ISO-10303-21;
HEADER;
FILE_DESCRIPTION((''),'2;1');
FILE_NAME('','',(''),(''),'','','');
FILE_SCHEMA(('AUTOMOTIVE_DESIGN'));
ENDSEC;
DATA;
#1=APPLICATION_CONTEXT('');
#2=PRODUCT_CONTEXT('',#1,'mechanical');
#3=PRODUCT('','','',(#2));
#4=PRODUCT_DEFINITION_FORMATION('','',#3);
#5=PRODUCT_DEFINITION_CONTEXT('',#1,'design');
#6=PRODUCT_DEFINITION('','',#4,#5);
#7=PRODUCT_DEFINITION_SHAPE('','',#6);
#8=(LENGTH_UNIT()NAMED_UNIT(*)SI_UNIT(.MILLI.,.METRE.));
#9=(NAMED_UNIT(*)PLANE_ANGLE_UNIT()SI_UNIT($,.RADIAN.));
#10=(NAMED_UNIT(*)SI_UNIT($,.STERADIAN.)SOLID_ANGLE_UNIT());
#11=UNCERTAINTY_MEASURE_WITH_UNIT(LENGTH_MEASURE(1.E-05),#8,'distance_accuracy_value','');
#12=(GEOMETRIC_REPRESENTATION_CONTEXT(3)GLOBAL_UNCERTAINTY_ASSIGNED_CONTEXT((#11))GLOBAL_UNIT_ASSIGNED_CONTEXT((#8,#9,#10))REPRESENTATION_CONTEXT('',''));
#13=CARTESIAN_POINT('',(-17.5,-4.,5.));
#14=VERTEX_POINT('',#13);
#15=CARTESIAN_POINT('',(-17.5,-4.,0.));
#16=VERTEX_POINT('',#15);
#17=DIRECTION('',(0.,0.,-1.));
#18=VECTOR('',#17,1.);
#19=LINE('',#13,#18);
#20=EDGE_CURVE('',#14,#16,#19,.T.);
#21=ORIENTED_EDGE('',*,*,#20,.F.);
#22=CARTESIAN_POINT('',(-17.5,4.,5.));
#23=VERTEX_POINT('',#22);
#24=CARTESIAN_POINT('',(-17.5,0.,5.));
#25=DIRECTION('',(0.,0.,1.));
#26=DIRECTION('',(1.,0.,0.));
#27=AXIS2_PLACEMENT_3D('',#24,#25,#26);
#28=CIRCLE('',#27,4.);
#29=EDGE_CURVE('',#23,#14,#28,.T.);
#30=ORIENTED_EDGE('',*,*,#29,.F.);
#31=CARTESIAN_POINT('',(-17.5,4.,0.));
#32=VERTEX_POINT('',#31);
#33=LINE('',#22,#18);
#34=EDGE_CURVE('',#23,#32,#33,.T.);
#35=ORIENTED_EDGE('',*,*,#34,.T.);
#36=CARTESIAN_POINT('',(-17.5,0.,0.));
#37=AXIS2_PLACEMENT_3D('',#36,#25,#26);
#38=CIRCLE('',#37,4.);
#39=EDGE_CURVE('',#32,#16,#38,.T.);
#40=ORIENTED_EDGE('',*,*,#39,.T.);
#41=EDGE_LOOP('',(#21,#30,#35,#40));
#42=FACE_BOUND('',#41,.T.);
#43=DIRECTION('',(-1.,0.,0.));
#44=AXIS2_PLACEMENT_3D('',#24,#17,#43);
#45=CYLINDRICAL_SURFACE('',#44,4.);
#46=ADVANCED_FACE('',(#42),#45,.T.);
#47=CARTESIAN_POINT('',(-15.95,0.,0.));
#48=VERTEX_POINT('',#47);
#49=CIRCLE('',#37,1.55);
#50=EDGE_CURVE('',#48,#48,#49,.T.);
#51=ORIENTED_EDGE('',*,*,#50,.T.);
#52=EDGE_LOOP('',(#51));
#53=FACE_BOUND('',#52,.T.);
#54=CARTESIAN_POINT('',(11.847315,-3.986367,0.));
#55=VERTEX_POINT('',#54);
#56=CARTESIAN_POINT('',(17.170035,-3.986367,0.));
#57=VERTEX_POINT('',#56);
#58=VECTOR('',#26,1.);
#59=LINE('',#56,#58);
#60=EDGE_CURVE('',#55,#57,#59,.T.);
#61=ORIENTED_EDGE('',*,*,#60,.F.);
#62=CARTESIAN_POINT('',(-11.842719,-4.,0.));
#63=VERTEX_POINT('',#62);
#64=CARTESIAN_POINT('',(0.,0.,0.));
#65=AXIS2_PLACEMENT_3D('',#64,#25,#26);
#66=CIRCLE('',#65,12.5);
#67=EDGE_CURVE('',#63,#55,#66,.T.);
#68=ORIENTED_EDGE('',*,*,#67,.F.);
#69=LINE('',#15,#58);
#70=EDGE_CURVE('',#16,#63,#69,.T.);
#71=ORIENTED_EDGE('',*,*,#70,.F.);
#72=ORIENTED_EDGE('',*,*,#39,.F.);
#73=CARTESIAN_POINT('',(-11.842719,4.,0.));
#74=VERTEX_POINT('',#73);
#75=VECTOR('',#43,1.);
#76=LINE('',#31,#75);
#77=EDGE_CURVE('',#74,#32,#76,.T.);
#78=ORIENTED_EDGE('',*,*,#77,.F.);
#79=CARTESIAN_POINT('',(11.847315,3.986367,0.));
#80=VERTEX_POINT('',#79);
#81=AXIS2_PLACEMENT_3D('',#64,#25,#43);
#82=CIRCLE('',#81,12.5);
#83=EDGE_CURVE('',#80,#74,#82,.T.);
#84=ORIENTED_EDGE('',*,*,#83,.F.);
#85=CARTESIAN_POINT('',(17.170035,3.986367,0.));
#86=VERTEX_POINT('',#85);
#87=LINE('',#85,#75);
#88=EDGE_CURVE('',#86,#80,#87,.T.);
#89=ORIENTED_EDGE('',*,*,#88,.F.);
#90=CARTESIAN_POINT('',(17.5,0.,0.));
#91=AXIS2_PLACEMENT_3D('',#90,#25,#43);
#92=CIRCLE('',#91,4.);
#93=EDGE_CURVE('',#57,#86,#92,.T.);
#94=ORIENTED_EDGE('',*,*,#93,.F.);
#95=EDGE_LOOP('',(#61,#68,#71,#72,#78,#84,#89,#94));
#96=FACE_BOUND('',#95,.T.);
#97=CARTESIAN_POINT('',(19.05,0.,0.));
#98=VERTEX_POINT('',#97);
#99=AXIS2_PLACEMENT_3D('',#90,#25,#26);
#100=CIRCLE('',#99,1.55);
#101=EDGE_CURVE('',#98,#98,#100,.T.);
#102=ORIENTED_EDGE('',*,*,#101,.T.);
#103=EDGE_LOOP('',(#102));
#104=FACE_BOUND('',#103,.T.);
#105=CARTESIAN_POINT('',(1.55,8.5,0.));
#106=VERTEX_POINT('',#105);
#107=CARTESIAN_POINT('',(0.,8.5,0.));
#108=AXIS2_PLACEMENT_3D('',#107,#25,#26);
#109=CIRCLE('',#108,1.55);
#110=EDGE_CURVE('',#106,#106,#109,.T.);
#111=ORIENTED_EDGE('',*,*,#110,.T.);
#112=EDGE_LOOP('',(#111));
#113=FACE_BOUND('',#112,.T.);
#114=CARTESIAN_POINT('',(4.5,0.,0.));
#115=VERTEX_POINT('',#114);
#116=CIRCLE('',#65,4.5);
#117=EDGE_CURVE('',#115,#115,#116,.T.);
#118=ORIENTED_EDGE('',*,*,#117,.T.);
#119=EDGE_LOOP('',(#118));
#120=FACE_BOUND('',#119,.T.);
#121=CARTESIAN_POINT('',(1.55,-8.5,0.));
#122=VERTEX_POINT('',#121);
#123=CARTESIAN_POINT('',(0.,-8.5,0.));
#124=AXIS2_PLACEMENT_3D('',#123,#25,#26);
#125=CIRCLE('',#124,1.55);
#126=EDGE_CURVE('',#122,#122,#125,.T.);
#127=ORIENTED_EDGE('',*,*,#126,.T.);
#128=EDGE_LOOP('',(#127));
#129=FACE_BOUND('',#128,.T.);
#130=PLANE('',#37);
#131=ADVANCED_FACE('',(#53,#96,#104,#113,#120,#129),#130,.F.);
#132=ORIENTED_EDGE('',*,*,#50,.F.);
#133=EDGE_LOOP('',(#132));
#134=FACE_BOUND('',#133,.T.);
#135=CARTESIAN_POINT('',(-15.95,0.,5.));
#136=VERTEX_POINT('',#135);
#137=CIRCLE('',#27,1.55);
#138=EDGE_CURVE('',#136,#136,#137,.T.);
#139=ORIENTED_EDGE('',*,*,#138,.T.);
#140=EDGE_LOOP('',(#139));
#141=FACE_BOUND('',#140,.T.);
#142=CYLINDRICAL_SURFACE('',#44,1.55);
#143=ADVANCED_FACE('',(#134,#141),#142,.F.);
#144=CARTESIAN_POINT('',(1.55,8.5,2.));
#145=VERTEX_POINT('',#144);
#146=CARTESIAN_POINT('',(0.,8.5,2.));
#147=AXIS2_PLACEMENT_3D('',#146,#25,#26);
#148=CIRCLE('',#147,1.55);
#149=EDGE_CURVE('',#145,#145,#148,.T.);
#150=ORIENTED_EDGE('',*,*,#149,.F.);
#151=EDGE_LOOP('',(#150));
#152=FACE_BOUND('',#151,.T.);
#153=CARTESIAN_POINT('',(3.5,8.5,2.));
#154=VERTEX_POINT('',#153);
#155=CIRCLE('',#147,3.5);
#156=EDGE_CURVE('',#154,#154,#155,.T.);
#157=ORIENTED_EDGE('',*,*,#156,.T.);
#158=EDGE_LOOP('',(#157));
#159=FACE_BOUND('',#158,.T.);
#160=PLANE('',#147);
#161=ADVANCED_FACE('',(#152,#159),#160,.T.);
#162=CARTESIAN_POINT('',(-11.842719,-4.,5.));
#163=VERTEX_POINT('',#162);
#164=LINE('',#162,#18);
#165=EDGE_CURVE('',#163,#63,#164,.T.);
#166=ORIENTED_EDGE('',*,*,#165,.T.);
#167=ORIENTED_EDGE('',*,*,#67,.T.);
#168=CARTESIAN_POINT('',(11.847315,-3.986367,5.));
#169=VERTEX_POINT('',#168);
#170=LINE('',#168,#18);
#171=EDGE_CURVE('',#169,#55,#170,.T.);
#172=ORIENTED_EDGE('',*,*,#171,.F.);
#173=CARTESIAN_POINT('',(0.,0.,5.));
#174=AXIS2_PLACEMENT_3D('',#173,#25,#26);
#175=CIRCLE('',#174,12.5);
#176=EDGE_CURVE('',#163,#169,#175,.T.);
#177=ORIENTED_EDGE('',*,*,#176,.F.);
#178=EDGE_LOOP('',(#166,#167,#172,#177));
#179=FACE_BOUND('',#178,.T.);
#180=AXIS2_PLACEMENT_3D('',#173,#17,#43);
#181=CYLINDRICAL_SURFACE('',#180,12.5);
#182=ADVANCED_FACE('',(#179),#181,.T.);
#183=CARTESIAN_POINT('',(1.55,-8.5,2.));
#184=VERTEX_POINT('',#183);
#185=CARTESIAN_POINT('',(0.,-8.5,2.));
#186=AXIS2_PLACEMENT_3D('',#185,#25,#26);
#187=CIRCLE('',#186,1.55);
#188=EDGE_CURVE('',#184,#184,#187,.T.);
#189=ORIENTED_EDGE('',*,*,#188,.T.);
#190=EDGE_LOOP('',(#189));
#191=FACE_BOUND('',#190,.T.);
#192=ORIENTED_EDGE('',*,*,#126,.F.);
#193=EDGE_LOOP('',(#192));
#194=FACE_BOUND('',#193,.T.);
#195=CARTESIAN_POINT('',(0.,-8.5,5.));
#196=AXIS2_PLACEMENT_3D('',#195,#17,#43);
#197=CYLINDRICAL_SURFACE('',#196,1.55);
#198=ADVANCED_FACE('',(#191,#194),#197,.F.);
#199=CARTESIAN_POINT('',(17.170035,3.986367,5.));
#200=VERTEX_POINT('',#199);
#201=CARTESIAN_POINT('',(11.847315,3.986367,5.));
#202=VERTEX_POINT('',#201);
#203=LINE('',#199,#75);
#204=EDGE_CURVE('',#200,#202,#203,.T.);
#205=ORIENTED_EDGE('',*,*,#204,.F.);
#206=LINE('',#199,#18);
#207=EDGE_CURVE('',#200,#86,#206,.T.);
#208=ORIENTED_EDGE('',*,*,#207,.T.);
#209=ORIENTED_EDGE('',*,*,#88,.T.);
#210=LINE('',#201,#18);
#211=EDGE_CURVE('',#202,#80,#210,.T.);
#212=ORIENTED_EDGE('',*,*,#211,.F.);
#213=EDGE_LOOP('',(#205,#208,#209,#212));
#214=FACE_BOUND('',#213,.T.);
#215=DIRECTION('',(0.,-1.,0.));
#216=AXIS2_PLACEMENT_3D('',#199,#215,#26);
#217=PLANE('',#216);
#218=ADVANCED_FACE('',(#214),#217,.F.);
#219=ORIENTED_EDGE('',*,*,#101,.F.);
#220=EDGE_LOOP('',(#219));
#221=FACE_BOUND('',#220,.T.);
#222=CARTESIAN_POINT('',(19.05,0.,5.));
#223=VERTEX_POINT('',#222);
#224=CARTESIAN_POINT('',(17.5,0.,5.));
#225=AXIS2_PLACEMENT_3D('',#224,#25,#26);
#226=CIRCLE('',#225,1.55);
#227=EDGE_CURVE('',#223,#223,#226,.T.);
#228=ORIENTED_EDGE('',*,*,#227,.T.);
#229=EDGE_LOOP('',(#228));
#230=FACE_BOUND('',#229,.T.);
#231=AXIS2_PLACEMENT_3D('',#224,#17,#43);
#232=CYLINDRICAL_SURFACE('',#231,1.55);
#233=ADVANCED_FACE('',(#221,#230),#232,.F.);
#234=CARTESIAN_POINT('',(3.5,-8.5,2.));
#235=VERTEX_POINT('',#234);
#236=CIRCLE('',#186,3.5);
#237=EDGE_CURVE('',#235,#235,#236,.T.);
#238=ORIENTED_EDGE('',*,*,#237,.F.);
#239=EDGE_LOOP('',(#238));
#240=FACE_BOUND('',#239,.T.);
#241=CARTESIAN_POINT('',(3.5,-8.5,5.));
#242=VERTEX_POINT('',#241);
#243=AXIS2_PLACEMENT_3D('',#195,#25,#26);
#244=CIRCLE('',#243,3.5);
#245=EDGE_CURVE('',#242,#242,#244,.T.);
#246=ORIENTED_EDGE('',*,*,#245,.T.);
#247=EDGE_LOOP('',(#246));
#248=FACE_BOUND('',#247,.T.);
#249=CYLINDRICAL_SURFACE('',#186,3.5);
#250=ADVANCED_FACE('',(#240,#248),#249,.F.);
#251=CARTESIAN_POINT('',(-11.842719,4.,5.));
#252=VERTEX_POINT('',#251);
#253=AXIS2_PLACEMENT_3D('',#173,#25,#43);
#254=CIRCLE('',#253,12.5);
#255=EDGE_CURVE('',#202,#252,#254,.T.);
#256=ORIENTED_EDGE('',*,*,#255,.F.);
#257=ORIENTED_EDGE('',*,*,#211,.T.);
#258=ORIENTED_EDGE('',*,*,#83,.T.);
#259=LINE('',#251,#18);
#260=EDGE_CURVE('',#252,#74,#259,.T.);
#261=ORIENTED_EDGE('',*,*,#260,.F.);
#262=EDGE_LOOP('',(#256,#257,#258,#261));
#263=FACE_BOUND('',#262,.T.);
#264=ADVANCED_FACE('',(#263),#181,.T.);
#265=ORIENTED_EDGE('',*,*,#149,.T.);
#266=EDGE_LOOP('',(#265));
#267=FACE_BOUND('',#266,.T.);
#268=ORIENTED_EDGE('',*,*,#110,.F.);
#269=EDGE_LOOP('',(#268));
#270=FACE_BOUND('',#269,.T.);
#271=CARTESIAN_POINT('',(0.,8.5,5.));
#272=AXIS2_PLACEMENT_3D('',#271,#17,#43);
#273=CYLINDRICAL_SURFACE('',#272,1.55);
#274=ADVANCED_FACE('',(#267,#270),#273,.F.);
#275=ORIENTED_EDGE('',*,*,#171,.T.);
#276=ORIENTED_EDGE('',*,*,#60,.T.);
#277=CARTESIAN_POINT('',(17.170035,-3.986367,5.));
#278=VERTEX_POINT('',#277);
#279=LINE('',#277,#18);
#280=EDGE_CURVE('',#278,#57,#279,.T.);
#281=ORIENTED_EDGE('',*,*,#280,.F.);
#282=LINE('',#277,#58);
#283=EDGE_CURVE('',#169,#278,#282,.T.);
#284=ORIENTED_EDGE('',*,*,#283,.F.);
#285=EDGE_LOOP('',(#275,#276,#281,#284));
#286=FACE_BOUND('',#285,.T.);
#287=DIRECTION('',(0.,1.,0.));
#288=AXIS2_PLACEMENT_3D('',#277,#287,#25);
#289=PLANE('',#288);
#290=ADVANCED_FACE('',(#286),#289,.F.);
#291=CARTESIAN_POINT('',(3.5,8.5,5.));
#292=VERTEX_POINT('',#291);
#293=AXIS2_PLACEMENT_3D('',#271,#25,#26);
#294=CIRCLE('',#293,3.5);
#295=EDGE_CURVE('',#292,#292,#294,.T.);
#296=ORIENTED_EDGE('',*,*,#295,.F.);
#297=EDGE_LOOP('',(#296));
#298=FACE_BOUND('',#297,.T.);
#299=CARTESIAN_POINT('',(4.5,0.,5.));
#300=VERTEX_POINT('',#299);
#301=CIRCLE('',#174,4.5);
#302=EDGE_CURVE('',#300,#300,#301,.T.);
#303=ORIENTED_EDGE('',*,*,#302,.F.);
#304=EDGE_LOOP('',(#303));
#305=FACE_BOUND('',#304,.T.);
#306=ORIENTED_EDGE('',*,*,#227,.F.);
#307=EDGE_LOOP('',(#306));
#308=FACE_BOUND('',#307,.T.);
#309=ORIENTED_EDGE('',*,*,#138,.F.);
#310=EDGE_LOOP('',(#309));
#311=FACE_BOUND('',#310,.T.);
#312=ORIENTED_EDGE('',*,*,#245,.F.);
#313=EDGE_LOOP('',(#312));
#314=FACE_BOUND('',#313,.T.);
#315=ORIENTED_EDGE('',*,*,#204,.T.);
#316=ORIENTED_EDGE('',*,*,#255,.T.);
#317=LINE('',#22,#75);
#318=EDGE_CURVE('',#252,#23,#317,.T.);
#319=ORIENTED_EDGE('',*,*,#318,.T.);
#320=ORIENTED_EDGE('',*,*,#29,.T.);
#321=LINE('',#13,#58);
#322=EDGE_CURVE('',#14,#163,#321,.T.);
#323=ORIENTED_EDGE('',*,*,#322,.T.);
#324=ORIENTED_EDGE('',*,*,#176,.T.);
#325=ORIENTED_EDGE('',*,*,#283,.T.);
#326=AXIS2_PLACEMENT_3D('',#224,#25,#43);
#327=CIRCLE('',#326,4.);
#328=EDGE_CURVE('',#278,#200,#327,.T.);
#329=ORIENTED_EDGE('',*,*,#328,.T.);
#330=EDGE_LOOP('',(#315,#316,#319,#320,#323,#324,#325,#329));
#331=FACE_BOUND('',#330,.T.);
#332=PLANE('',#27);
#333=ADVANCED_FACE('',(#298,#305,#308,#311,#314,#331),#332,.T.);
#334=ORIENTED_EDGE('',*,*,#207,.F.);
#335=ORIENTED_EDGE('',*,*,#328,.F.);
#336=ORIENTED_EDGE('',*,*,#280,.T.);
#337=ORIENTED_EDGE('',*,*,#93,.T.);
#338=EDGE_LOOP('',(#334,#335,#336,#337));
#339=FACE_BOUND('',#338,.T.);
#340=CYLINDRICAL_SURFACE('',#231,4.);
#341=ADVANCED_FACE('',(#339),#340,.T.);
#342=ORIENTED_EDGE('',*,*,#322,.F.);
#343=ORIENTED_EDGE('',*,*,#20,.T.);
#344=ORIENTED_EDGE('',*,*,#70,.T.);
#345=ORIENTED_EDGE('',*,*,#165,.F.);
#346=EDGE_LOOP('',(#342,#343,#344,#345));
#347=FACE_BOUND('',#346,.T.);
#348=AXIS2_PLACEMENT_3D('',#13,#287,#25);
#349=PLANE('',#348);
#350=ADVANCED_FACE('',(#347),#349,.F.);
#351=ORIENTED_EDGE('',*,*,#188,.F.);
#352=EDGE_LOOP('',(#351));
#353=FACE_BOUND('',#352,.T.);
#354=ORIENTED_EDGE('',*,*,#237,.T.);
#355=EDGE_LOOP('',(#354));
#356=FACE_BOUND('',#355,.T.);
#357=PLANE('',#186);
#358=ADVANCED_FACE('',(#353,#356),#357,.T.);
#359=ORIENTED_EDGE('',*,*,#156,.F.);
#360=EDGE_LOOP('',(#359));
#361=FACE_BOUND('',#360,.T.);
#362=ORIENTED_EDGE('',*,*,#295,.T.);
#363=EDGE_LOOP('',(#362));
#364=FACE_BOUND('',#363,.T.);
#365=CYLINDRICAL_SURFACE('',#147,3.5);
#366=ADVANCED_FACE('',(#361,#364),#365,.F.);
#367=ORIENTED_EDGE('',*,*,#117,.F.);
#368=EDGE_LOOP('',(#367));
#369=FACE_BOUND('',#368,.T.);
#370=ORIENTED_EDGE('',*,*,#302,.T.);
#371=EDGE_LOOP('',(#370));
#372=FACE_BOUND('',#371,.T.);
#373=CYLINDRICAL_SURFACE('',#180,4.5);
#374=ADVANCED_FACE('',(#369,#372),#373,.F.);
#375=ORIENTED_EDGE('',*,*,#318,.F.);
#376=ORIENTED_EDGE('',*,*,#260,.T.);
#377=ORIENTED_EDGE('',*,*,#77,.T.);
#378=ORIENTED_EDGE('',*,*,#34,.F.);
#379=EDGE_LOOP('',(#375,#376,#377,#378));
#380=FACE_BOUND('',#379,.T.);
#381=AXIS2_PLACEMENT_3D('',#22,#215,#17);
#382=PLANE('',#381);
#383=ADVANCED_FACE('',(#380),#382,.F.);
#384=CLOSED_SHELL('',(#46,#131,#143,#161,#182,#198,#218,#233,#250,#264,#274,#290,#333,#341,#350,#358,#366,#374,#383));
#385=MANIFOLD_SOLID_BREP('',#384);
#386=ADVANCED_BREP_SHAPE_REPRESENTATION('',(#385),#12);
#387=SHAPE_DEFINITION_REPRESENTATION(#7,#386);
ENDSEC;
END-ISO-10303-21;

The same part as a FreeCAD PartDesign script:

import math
import FreeCAD as App
import Part
import Sketcher

V = App.Vector
Q = App.Units.Quantity

doc = App.newDocument("Part")
body = doc.addObject("PartDesign::Body", "Body")

# Sketch on XY plane
sketch1 = body.newObject("Sketcher::SketchObject", "Sketch")
sketch1.AttachmentSupport = (doc.getObject("XY_Plane"), [""])
sketch1.MapMode = "FlatFace"
sketch1.addGeometry([
    Part.LineSegment(V(-11.8, 4, 0), V(-17.5, 4, 0)),  # 0
    Part.ArcOfCircle(Part.Circle(V(-17.5, 0, 0), V(0, 0, 1), 4), math.radians(90), math.radians(270)),  # 1
    Part.LineSegment(V(-17.5, -4, 0), V(-11.8, -4, 0)),  # 2
    Part.ArcOfCircle(Part.Circle(V(0, 0, 0), V(0, 0, 1), 12.5), math.radians(-161), math.radians(-19)),  # 3
    Part.LineSegment(V(11.8, -4, 0), V(17.2, -4, 0)),  # 4
    Part.ArcOfCircle(Part.Circle(V(17.5, 0, 0), V(0, 0, 1), 4), math.radians(-95), math.radians(95)),  # 5
    Part.LineSegment(V(17.2, 4, 0), V(11.8, 4, 0)),  # 6
    Part.ArcOfCircle(Part.Circle(V(0, 0, 0), V(0, 0, 1), 12.5), math.radians(19), math.radians(161)),  # 7
    Part.Circle(V(0, -8.5, 0), V(0, 0, 1), 1.6),  # 8
    Part.Circle(V(17.5, 0, 0), V(0, 0, 1), 1.6),  # 9
    Part.Circle(V(0, 0, 0), V(0, 0, 1), 4.5),  # 10
    Part.Circle(V(-17.5, 0, 0), V(0, 0, 1), 1.6),  # 11
    Part.Circle(V(0, 8.5, 0), V(0, 0, 1), 1.6),  # 12
], False)
sketch1.addConstraint([
    Sketcher.Constraint("Tangent", 0, 2, 1, 1),
    Sketcher.Constraint("Tangent", 1, 2, 2, 1),
    Sketcher.Constraint("Coincident", 2, 2, 3, 1),
    Sketcher.Constraint("Coincident", 3, 2, 4, 1),
    Sketcher.Constraint("Coincident", 4, 2, 5, 1),
    Sketcher.Constraint("Coincident", 5, 2, 6, 1),
    Sketcher.Constraint("Coincident", 6, 2, 7, 1),
    Sketcher.Constraint("Coincident", 7, 2, 0, 1),
    Sketcher.Constraint("Horizontal", 0),
    Sketcher.Constraint("Horizontal", 2),
    Sketcher.Constraint("Horizontal", 4),
    Sketcher.Constraint("Horizontal", 6),
    Sketcher.Constraint("Coincident", 3, 3, -1, 1),
    Sketcher.Constraint("Coincident", 7, 3, -1, 1),
    Sketcher.Constraint("Coincident", 10, 3, -1, 1),
    Sketcher.Constraint("Coincident", 9, 3, 5, 3),
    Sketcher.Constraint("Coincident", 11, 3, 1, 3),
    Sketcher.Constraint("Equal", 1, 5),
    Sketcher.Constraint("Equal", 3, 7),
    Sketcher.Constraint("Equal", 8, 9),
    Sketcher.Constraint("Equal", 9, 11),
    Sketcher.Constraint("Equal", 11, 12),
    Sketcher.Constraint("Symmetric", 1, 3, 5, 3, -1, 1),
    Sketcher.Constraint("Symmetric", 8, 3, 12, 3, -1, 1),
    Sketcher.Constraint("Symmetric", 4, 2, 5, 2, -1),
    Sketcher.Constraint("PointOnObject", 8, 3, -2),
    Sketcher.Constraint("Diameter", 10, Q("9 mm")),
    Sketcher.Constraint("Radius", 1, Q("4 mm")),
    Sketcher.Constraint("Diameter", 8, Q("3.1 mm")),
    Sketcher.Constraint("Radius", 3, Q("12.5 mm")),
    Sketcher.Constraint("DistanceX", 1, 3, 5, 3, Q("35 mm")),
    Sketcher.Constraint("DistanceY", 8, 3, 12, 3, Q("17 mm")),
    Sketcher.Constraint("DistanceX", 4, 1, 4, 2, Q("5.32272 mm")),
])
pad1 = body.newObject("PartDesign::Pad", "Pad")
pad1.Profile = sketch1
pad1.Length = 5

# Sketch on XY plane
sketch2 = body.newObject("Sketcher::SketchObject", "Sketch001")
sketch2.AttachmentSupport = (doc.getObject("XY_Plane"), [""])
sketch2.MapMode = "FlatFace"
sketch2.AttachmentOffset = App.Placement(V(0, 0, 5), App.Rotation())
sketch2.addGeometry([
    Part.Circle(V(0, 8.5, 0), V(0, 0, 1), 3.5),
    Part.Circle(V(0, -8.5, 0), V(0, 0, 1), 3.5),
], False)
sketch2.addConstraint([
    Sketcher.Constraint("Equal", 0, 1),
    Sketcher.Constraint("Symmetric", 0, 3, 1, 3, -1, 1),
    Sketcher.Constraint("PointOnObject", 0, 3, -2),
    Sketcher.Constraint("Diameter", 0, Q("7 mm")),
    Sketcher.Constraint("DistanceY", 1, 3, 0, 3, Q("17 mm")),
])
pocket1 = body.newObject("PartDesign::Pocket", "Pocket")
pocket1.Profile = sketch2
pocket1.Length = 3

doc.recompute()
